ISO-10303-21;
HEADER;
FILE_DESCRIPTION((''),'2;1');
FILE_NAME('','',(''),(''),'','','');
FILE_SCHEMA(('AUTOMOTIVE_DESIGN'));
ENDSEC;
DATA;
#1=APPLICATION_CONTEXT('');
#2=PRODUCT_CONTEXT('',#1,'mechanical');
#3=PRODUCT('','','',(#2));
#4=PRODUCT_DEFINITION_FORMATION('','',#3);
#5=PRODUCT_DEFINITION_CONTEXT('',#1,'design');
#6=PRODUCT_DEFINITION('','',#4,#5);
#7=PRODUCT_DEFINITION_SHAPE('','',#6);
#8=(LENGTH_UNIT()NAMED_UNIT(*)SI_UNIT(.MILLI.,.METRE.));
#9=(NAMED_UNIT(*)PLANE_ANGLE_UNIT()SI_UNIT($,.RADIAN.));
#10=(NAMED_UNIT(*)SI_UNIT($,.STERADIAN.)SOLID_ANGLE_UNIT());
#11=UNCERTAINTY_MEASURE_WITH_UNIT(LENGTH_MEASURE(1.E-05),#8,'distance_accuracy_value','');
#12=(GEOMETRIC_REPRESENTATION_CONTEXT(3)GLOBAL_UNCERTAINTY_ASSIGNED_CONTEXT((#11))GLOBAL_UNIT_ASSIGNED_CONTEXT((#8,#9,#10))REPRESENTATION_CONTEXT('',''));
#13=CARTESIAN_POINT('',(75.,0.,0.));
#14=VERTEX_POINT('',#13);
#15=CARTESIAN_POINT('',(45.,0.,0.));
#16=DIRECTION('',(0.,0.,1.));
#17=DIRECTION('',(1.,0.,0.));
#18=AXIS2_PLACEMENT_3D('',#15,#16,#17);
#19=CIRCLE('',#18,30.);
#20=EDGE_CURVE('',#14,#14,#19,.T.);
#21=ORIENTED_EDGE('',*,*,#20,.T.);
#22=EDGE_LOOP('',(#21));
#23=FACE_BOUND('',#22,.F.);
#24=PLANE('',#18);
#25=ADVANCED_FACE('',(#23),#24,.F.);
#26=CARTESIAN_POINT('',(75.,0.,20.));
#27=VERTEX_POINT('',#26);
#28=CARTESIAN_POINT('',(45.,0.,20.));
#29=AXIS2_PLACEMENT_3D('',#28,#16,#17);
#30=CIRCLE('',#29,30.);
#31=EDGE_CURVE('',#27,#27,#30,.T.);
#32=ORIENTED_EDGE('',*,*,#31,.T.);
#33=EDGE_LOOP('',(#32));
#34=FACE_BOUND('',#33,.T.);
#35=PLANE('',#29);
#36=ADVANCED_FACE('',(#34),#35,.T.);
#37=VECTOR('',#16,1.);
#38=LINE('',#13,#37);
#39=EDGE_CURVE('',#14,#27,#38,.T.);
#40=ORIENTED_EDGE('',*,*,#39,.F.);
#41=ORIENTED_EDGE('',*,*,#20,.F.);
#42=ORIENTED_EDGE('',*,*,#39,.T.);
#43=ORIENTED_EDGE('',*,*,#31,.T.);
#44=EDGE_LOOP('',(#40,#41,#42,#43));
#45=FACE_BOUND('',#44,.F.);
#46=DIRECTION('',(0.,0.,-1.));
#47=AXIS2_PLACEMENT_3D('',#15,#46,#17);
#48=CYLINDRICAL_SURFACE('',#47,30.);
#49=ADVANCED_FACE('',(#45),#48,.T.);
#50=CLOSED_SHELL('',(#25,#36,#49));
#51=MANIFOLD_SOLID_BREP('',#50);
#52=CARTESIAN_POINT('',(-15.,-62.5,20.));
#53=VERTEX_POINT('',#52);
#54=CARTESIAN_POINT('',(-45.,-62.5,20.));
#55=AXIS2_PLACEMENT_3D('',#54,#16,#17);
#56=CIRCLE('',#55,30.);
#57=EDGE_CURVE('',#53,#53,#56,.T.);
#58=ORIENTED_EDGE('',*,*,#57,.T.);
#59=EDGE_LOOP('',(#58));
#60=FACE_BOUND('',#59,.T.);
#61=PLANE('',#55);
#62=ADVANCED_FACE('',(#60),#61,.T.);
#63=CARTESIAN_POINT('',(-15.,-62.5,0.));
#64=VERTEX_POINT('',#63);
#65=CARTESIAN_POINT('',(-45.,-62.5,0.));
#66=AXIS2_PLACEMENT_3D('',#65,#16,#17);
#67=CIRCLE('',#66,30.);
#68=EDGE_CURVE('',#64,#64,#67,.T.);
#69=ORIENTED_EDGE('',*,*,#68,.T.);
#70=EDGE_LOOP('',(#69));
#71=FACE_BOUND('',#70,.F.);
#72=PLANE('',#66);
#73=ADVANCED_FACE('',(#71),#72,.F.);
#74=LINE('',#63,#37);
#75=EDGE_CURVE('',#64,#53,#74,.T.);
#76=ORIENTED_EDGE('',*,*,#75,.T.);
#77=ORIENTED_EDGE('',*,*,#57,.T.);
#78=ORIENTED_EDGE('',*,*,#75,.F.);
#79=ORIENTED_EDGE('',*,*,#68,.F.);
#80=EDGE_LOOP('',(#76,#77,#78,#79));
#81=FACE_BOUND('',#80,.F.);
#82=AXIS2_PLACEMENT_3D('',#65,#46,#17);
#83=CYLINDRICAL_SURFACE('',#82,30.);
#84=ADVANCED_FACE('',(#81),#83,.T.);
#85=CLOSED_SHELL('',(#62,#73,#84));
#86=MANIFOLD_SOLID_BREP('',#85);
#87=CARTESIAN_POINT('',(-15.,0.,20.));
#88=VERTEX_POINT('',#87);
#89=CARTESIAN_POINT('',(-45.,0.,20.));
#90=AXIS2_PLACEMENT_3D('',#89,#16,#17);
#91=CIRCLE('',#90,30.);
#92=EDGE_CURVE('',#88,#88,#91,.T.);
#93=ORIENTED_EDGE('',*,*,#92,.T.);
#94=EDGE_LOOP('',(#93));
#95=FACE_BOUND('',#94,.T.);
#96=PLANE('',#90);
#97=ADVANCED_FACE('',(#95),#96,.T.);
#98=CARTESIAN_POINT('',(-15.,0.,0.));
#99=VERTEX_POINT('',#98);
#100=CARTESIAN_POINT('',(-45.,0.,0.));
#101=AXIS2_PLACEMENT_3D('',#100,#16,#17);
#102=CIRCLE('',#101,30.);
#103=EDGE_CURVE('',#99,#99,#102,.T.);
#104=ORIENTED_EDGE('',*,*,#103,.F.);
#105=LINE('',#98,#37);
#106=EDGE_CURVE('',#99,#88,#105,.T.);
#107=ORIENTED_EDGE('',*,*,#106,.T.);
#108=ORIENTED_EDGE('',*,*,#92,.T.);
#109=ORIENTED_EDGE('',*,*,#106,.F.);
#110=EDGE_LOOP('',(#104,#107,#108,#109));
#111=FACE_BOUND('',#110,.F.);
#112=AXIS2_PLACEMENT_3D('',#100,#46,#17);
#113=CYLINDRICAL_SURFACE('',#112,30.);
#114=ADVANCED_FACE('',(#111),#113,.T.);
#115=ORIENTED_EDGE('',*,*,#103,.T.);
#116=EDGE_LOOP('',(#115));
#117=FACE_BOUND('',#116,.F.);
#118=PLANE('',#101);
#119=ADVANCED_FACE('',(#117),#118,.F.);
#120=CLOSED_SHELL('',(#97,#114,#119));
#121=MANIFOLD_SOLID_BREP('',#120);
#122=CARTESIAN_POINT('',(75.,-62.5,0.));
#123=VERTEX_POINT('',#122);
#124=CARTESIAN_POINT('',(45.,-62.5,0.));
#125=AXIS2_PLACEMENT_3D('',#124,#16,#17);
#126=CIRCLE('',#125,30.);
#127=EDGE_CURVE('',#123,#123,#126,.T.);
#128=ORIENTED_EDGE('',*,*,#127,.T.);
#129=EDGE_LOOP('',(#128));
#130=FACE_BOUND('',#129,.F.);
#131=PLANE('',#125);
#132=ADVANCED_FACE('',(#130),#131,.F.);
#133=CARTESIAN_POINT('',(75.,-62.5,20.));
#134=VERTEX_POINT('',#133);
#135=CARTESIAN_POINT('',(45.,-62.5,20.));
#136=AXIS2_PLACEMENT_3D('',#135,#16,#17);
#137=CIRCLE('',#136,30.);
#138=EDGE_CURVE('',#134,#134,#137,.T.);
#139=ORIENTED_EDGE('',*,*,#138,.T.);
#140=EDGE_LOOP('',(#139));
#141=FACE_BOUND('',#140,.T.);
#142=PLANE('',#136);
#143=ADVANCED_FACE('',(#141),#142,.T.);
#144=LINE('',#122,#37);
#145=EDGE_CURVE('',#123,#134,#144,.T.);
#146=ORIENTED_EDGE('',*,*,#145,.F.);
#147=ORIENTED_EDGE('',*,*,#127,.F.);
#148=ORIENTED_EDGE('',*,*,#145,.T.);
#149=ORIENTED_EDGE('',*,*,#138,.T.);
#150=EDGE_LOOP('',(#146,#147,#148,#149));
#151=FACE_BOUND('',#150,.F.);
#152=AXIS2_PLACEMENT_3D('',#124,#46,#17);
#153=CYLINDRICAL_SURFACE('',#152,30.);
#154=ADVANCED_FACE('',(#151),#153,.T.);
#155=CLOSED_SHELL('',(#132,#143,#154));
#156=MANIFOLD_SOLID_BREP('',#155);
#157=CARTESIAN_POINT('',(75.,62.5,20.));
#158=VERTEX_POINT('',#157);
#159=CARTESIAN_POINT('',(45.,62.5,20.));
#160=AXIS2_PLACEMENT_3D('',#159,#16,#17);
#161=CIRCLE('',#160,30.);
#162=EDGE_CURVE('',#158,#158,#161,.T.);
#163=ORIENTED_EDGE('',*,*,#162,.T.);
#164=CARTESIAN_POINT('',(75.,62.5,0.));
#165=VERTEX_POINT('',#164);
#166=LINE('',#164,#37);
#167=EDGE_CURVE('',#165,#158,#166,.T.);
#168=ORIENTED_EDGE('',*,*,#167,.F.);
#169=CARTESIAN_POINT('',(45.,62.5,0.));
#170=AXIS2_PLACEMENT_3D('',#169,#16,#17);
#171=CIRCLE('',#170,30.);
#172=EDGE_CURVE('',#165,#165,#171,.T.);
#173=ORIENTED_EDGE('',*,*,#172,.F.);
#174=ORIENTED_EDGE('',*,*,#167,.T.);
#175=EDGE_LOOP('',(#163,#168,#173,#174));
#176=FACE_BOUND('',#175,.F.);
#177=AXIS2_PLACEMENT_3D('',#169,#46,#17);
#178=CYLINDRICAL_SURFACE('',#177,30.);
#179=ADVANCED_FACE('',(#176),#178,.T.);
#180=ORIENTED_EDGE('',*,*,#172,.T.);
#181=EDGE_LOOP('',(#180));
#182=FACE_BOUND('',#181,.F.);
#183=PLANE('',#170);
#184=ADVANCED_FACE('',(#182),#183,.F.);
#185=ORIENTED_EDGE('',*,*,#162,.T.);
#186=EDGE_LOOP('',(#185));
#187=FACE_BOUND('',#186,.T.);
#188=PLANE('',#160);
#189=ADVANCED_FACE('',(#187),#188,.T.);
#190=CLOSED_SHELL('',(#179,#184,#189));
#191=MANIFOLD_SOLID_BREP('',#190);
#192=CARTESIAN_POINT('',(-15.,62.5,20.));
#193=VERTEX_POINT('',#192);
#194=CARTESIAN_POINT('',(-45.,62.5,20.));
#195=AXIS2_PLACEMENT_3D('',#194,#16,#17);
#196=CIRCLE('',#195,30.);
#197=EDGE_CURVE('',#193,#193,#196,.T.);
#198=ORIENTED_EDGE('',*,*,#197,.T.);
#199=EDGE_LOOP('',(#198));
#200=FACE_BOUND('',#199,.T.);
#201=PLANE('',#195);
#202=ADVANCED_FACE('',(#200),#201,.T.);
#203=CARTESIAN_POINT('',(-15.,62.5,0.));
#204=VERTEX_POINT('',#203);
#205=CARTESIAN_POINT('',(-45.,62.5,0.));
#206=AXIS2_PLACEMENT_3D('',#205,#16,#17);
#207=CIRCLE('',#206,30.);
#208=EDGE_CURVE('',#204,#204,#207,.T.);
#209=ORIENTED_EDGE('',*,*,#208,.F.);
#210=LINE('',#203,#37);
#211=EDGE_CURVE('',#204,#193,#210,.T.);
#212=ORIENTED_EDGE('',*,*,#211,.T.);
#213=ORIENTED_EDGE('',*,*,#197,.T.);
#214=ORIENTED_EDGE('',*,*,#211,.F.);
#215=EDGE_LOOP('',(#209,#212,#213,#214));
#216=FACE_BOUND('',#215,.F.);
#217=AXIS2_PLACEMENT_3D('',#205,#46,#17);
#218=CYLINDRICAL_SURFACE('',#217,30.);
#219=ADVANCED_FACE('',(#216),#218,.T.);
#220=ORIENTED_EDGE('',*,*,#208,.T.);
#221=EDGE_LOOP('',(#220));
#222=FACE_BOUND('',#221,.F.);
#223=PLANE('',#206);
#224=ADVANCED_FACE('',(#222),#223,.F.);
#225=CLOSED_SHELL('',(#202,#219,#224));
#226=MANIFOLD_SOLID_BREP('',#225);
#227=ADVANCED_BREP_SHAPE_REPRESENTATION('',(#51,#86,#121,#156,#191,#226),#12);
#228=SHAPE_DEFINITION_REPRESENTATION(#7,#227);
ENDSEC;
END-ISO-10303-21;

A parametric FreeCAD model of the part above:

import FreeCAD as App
import Part
import Sketcher

V = App.Vector

doc = App.newDocument("Part")
body = doc.addObject("PartDesign::Body", "Body")
body.AllowCompound = True

sketch1 = body.newObject("Sketcher::SketchObject", "Sketch")
sketch1.AttachmentSupport = (doc.getObject("XY_Plane"), [""])
sketch1.MapMode = "FlatFace"
sketch1.addGeometry(Part.Circle(V(-45, 62, 0), V(0, 0, 1), 30), False)
sketch1.addGeometry(Part.Circle(V(-45, 0, 0), V(0, 0, 1), 30), False)
sketch1.addGeometry(Part.Circle(V(-45, -62, 0), V(0, 0, 1), 30), False)
sketch1.addGeometry(Part.Circle(V(45, 62, 0), V(0, 0, 1), 30), False)
sketch1.addGeometry(Part.Circle(V(45, 0, 0), V(0, 0, 1), 30), False)
sketch1.addGeometry(Part.Circle(V(45, -62, 0), V(0, 0, 1), 30), False)
sketch1.addConstraint(Sketcher.Constraint("Equal", 0, 1))
sketch1.addConstraint(Sketcher.Constraint("Equal", 1, 2))
sketch1.addConstraint(Sketcher.Constraint("Equal", 2, 3))
sketch1.addConstraint(Sketcher.Constraint("Equal", 3, 4))
sketch1.addConstraint(Sketcher.Constraint("Equal", 4, 5))
sketch1.addConstraint(Sketcher.Constraint("Symmetric", 2, 3, 3, 3, -1, 1))
sketch1.addConstraint(Sketcher.Constraint("Symmetric", 1, 3, 4, 3, -1, 1))
sketch1.addConstraint(Sketcher.Constraint("Symmetric", 0, 3, 5, 3, -1, 1))
sketch1.addConstraint(Sketcher.Constraint("Symmetric", 0, 3, 3, 3, -2))
sketch1.addConstraint(Sketcher.Constraint("PointOnObject", 1, 3, -1))
sketch1.addConstraint(Sketcher.Constraint("Vertical", 0, 3, 1, 3))
sketch1.addConstraint(Sketcher.Constraint("Diameter", 0, 60.0))
sketch1.addConstraint(Sketcher.Constraint("DistanceX", 0, 3, -1, 1, 45.0))
sketch1.addConstraint(Sketcher.Constraint("DistanceY", 2, 3, 0, 3, 125.0))
pad1 = body.newObject("PartDesign::Pad", "Pad")
pad1.Profile = sketch1
pad1.Length = 20

doc.recompute()
